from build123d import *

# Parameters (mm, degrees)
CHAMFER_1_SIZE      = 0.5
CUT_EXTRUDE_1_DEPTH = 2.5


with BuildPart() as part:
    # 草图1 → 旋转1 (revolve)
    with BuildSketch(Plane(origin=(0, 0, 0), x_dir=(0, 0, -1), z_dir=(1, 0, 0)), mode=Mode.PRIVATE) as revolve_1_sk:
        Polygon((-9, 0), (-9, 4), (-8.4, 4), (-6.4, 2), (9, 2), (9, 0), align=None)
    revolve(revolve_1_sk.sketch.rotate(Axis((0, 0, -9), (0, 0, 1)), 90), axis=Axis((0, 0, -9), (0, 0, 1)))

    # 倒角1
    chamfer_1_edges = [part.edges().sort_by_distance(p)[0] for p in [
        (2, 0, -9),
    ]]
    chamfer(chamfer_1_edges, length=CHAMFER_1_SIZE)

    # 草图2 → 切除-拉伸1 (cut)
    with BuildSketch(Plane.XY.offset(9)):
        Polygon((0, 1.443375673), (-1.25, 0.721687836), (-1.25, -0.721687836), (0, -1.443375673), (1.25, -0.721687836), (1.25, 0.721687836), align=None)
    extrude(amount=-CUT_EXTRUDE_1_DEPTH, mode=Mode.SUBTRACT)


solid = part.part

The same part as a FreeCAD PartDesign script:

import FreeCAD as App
import Part
import Sketcher

V = App.Vector
Q = App.Units.Quantity


def edges_at(feature, points):
    """Names of the edges that pass closest to the given points."""
    edges = feature.Shape.Edges
    near = lambda p: min(range(len(edges)), key=lambda i: edges[i].distToShape(Part.Vertex(*p))[0])
    return sorted({f"Edge{near(p) + 1}" for p in points})


def add_polygon(sketch, points):
    """Adds a closed chain of lines whose ends are joined by coincident constraints."""
    first, n = sketch.GeometryCount, len(points)
    for a, b in zip(points, points[1:] + points[:1]):
        sketch.addGeometry(Part.LineSegment(App.Vector(*a, 0), App.Vector(*b, 0)), False)
    for i in range(n):
        sketch.addConstraint(Sketcher.Constraint("Coincident", first + i, 2, first + (i + 1) % n, 1))

doc = App.newDocument("Part")
body = doc.addObject("PartDesign::Body", "Body")

sketch1 = body.newObject("Sketcher::SketchObject", "Sketch")
sketch1.AttachmentSupport = (doc.getObject("YZ_Plane"), [""])
sketch1.MapMode = "FlatFace"
add_polygon(sketch1, [(4, 9), (0, 9), (0, -9), (2, -9), (2, 6.4), (4, 8.4)])
sketch1.addConstraint(Sketcher.Constraint("Horizontal", 0))
sketch1.addConstraint(Sketcher.Constraint("Vertical", 1))
sketch1.addConstraint(Sketcher.Constraint("Horizontal", 2))
sketch1.addConstraint(Sketcher.Constraint("Vertical", 3))
sketch1.addConstraint(Sketcher.Constraint("Vertical", 5))
sketch1.addConstraint(Sketcher.Constraint("Symmetric", 0, 2, 1, 2, -1, 1))
sketch1.addConstraint(Sketcher.Constraint("DistanceX", 0, 2, 0, 1, Q("4 mm")))
sketch1.addConstraint(Sketcher.Constraint("DistanceX", 2, 1, 2, 2, Q("2 mm")))
sketch1.addConstraint(Sketcher.Constraint("DistanceY", 1, 2, 1, 1, Q("18 mm")))
sketch1.addConstraint(Sketcher.Constraint("Angle", 4, Q("45 deg")))
sketch1.addConstraint(Sketcher.Constraint("DistanceY", 3, 1, 3, 2, Q("15.4 mm")))
revolution = body.newObject("PartDesign::Revolution", "Revolution")
revolution.Profile = sketch1
revolution.ReferenceAxis = (sketch1, ["V_Axis"])
revolution.Angle = 360
doc.recompute()

chamfer = body.newObject("PartDesign::Chamfer", "Chamfer")
chamfer.Base = (revolution, edges_at(revolution, [(2, 0, -9)]))
chamfer.Size = 0.5

sketch2 = body.newObject("Sketcher::SketchObject", "Sketch001")
sketch2.AttachmentSupport = (doc.getObject("XY_Plane"), [""])
sketch2.MapMode = "FlatFace"
sketch2.AttachmentOffset = App.Placement(V(0, 0, 9), App.Rotation())
add_polygon(sketch2, [(0, 1.4), (-1.2, 0.7), (-1.2, -0.7), (0, -1.4), (1.2, -0.7), (1.2, 0.7)])
sketch2.addConstraint(Sketcher.Constraint("Vertical", 1))
sketch2.addConstraint(Sketcher.Constraint("Vertical", 4))
sketch2.addConstraint(Sketcher.Constraint("Symmetric", 0, 2, 3, 2, -1, 1))
sketch2.addConstraint(Sketcher.Constraint("Symmetric", 2, 2, 5, 2, -1, 1))
sketch2.addConstraint(Sketcher.Constraint("PointOnObject", 2, 2, -2))
sketch2.addConstraint(Sketcher.Constraint("Parallel", 2, 5))
sketch2.addConstraint(Sketcher.Constraint("Horizontal", 1, 2, 3, 2))
sketch2.addConstraint(Sketcher.Constraint("Angle", 0, Q("-150 deg")))
sketch2.addConstraint(Sketcher.Constraint("DistanceX", 1, 2, 3, 2, Q("2.5 mm")))
sketch2.addConstraint(Sketcher.Constraint("DistanceY", 1, 2, 1, 1, Q("1.443376 mm")))
pocket1 = body.newObject("PartDesign::Pocket", "Pocket")
pocket1.Profile = sketch2
pocket1.Length = 2.5

doc.recompute()
